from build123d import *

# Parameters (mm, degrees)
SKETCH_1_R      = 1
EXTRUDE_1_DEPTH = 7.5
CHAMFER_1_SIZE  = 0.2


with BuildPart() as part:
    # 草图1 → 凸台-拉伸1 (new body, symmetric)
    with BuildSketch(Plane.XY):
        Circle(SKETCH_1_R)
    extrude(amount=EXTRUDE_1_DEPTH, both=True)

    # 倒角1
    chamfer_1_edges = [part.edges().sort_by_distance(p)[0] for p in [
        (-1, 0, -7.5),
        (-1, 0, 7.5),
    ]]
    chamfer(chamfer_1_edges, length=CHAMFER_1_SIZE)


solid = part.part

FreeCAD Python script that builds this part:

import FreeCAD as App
import Part
import Sketcher


def edges_at(feature, points):
    """Names of the edges that pass closest to the given points."""
    edges = feature.Shape.Edges
    near = lambda p: min(range(len(edges)), key=lambda i: edges[i].distToShape(Part.Vertex(*p))[0])
    return sorted({f"Edge{near(p) + 1}" for p in points})

doc = App.newDocument("Part")
body = doc.addObject("PartDesign::Body", "Body")

sketch1 = body.newObject("Sketcher::SketchObject", "Sketch")
sketch1.AttachmentSupport = (doc.getObject("XY_Plane"), [""])
sketch1.MapMode = "FlatFace"
sketch1.addGeometry(Part.Circle(App.Vector(0, 0, 0), App.Vector(0, 0, 1), 1), False)
sketch1.addConstraint([
    Sketcher.Constraint("Coincident", 0, 3, -1, 1),
    Sketcher.Constraint("Diameter", 0, 2.0),
])
pad1 = body.newObject("PartDesign::Pad", "Pad")
pad1.Profile = sketch1
pad1.Length = 15
pad1.Midplane = True
doc.recompute()

chamfer = body.newObject("PartDesign::Chamfer", "Chamfer")
chamfer.Base = (pad1, edges_at(pad1, [(-1, 0, -7.5), (-1, 0, 7.5)]))
chamfer.Size = 0.2

doc.recompute()
